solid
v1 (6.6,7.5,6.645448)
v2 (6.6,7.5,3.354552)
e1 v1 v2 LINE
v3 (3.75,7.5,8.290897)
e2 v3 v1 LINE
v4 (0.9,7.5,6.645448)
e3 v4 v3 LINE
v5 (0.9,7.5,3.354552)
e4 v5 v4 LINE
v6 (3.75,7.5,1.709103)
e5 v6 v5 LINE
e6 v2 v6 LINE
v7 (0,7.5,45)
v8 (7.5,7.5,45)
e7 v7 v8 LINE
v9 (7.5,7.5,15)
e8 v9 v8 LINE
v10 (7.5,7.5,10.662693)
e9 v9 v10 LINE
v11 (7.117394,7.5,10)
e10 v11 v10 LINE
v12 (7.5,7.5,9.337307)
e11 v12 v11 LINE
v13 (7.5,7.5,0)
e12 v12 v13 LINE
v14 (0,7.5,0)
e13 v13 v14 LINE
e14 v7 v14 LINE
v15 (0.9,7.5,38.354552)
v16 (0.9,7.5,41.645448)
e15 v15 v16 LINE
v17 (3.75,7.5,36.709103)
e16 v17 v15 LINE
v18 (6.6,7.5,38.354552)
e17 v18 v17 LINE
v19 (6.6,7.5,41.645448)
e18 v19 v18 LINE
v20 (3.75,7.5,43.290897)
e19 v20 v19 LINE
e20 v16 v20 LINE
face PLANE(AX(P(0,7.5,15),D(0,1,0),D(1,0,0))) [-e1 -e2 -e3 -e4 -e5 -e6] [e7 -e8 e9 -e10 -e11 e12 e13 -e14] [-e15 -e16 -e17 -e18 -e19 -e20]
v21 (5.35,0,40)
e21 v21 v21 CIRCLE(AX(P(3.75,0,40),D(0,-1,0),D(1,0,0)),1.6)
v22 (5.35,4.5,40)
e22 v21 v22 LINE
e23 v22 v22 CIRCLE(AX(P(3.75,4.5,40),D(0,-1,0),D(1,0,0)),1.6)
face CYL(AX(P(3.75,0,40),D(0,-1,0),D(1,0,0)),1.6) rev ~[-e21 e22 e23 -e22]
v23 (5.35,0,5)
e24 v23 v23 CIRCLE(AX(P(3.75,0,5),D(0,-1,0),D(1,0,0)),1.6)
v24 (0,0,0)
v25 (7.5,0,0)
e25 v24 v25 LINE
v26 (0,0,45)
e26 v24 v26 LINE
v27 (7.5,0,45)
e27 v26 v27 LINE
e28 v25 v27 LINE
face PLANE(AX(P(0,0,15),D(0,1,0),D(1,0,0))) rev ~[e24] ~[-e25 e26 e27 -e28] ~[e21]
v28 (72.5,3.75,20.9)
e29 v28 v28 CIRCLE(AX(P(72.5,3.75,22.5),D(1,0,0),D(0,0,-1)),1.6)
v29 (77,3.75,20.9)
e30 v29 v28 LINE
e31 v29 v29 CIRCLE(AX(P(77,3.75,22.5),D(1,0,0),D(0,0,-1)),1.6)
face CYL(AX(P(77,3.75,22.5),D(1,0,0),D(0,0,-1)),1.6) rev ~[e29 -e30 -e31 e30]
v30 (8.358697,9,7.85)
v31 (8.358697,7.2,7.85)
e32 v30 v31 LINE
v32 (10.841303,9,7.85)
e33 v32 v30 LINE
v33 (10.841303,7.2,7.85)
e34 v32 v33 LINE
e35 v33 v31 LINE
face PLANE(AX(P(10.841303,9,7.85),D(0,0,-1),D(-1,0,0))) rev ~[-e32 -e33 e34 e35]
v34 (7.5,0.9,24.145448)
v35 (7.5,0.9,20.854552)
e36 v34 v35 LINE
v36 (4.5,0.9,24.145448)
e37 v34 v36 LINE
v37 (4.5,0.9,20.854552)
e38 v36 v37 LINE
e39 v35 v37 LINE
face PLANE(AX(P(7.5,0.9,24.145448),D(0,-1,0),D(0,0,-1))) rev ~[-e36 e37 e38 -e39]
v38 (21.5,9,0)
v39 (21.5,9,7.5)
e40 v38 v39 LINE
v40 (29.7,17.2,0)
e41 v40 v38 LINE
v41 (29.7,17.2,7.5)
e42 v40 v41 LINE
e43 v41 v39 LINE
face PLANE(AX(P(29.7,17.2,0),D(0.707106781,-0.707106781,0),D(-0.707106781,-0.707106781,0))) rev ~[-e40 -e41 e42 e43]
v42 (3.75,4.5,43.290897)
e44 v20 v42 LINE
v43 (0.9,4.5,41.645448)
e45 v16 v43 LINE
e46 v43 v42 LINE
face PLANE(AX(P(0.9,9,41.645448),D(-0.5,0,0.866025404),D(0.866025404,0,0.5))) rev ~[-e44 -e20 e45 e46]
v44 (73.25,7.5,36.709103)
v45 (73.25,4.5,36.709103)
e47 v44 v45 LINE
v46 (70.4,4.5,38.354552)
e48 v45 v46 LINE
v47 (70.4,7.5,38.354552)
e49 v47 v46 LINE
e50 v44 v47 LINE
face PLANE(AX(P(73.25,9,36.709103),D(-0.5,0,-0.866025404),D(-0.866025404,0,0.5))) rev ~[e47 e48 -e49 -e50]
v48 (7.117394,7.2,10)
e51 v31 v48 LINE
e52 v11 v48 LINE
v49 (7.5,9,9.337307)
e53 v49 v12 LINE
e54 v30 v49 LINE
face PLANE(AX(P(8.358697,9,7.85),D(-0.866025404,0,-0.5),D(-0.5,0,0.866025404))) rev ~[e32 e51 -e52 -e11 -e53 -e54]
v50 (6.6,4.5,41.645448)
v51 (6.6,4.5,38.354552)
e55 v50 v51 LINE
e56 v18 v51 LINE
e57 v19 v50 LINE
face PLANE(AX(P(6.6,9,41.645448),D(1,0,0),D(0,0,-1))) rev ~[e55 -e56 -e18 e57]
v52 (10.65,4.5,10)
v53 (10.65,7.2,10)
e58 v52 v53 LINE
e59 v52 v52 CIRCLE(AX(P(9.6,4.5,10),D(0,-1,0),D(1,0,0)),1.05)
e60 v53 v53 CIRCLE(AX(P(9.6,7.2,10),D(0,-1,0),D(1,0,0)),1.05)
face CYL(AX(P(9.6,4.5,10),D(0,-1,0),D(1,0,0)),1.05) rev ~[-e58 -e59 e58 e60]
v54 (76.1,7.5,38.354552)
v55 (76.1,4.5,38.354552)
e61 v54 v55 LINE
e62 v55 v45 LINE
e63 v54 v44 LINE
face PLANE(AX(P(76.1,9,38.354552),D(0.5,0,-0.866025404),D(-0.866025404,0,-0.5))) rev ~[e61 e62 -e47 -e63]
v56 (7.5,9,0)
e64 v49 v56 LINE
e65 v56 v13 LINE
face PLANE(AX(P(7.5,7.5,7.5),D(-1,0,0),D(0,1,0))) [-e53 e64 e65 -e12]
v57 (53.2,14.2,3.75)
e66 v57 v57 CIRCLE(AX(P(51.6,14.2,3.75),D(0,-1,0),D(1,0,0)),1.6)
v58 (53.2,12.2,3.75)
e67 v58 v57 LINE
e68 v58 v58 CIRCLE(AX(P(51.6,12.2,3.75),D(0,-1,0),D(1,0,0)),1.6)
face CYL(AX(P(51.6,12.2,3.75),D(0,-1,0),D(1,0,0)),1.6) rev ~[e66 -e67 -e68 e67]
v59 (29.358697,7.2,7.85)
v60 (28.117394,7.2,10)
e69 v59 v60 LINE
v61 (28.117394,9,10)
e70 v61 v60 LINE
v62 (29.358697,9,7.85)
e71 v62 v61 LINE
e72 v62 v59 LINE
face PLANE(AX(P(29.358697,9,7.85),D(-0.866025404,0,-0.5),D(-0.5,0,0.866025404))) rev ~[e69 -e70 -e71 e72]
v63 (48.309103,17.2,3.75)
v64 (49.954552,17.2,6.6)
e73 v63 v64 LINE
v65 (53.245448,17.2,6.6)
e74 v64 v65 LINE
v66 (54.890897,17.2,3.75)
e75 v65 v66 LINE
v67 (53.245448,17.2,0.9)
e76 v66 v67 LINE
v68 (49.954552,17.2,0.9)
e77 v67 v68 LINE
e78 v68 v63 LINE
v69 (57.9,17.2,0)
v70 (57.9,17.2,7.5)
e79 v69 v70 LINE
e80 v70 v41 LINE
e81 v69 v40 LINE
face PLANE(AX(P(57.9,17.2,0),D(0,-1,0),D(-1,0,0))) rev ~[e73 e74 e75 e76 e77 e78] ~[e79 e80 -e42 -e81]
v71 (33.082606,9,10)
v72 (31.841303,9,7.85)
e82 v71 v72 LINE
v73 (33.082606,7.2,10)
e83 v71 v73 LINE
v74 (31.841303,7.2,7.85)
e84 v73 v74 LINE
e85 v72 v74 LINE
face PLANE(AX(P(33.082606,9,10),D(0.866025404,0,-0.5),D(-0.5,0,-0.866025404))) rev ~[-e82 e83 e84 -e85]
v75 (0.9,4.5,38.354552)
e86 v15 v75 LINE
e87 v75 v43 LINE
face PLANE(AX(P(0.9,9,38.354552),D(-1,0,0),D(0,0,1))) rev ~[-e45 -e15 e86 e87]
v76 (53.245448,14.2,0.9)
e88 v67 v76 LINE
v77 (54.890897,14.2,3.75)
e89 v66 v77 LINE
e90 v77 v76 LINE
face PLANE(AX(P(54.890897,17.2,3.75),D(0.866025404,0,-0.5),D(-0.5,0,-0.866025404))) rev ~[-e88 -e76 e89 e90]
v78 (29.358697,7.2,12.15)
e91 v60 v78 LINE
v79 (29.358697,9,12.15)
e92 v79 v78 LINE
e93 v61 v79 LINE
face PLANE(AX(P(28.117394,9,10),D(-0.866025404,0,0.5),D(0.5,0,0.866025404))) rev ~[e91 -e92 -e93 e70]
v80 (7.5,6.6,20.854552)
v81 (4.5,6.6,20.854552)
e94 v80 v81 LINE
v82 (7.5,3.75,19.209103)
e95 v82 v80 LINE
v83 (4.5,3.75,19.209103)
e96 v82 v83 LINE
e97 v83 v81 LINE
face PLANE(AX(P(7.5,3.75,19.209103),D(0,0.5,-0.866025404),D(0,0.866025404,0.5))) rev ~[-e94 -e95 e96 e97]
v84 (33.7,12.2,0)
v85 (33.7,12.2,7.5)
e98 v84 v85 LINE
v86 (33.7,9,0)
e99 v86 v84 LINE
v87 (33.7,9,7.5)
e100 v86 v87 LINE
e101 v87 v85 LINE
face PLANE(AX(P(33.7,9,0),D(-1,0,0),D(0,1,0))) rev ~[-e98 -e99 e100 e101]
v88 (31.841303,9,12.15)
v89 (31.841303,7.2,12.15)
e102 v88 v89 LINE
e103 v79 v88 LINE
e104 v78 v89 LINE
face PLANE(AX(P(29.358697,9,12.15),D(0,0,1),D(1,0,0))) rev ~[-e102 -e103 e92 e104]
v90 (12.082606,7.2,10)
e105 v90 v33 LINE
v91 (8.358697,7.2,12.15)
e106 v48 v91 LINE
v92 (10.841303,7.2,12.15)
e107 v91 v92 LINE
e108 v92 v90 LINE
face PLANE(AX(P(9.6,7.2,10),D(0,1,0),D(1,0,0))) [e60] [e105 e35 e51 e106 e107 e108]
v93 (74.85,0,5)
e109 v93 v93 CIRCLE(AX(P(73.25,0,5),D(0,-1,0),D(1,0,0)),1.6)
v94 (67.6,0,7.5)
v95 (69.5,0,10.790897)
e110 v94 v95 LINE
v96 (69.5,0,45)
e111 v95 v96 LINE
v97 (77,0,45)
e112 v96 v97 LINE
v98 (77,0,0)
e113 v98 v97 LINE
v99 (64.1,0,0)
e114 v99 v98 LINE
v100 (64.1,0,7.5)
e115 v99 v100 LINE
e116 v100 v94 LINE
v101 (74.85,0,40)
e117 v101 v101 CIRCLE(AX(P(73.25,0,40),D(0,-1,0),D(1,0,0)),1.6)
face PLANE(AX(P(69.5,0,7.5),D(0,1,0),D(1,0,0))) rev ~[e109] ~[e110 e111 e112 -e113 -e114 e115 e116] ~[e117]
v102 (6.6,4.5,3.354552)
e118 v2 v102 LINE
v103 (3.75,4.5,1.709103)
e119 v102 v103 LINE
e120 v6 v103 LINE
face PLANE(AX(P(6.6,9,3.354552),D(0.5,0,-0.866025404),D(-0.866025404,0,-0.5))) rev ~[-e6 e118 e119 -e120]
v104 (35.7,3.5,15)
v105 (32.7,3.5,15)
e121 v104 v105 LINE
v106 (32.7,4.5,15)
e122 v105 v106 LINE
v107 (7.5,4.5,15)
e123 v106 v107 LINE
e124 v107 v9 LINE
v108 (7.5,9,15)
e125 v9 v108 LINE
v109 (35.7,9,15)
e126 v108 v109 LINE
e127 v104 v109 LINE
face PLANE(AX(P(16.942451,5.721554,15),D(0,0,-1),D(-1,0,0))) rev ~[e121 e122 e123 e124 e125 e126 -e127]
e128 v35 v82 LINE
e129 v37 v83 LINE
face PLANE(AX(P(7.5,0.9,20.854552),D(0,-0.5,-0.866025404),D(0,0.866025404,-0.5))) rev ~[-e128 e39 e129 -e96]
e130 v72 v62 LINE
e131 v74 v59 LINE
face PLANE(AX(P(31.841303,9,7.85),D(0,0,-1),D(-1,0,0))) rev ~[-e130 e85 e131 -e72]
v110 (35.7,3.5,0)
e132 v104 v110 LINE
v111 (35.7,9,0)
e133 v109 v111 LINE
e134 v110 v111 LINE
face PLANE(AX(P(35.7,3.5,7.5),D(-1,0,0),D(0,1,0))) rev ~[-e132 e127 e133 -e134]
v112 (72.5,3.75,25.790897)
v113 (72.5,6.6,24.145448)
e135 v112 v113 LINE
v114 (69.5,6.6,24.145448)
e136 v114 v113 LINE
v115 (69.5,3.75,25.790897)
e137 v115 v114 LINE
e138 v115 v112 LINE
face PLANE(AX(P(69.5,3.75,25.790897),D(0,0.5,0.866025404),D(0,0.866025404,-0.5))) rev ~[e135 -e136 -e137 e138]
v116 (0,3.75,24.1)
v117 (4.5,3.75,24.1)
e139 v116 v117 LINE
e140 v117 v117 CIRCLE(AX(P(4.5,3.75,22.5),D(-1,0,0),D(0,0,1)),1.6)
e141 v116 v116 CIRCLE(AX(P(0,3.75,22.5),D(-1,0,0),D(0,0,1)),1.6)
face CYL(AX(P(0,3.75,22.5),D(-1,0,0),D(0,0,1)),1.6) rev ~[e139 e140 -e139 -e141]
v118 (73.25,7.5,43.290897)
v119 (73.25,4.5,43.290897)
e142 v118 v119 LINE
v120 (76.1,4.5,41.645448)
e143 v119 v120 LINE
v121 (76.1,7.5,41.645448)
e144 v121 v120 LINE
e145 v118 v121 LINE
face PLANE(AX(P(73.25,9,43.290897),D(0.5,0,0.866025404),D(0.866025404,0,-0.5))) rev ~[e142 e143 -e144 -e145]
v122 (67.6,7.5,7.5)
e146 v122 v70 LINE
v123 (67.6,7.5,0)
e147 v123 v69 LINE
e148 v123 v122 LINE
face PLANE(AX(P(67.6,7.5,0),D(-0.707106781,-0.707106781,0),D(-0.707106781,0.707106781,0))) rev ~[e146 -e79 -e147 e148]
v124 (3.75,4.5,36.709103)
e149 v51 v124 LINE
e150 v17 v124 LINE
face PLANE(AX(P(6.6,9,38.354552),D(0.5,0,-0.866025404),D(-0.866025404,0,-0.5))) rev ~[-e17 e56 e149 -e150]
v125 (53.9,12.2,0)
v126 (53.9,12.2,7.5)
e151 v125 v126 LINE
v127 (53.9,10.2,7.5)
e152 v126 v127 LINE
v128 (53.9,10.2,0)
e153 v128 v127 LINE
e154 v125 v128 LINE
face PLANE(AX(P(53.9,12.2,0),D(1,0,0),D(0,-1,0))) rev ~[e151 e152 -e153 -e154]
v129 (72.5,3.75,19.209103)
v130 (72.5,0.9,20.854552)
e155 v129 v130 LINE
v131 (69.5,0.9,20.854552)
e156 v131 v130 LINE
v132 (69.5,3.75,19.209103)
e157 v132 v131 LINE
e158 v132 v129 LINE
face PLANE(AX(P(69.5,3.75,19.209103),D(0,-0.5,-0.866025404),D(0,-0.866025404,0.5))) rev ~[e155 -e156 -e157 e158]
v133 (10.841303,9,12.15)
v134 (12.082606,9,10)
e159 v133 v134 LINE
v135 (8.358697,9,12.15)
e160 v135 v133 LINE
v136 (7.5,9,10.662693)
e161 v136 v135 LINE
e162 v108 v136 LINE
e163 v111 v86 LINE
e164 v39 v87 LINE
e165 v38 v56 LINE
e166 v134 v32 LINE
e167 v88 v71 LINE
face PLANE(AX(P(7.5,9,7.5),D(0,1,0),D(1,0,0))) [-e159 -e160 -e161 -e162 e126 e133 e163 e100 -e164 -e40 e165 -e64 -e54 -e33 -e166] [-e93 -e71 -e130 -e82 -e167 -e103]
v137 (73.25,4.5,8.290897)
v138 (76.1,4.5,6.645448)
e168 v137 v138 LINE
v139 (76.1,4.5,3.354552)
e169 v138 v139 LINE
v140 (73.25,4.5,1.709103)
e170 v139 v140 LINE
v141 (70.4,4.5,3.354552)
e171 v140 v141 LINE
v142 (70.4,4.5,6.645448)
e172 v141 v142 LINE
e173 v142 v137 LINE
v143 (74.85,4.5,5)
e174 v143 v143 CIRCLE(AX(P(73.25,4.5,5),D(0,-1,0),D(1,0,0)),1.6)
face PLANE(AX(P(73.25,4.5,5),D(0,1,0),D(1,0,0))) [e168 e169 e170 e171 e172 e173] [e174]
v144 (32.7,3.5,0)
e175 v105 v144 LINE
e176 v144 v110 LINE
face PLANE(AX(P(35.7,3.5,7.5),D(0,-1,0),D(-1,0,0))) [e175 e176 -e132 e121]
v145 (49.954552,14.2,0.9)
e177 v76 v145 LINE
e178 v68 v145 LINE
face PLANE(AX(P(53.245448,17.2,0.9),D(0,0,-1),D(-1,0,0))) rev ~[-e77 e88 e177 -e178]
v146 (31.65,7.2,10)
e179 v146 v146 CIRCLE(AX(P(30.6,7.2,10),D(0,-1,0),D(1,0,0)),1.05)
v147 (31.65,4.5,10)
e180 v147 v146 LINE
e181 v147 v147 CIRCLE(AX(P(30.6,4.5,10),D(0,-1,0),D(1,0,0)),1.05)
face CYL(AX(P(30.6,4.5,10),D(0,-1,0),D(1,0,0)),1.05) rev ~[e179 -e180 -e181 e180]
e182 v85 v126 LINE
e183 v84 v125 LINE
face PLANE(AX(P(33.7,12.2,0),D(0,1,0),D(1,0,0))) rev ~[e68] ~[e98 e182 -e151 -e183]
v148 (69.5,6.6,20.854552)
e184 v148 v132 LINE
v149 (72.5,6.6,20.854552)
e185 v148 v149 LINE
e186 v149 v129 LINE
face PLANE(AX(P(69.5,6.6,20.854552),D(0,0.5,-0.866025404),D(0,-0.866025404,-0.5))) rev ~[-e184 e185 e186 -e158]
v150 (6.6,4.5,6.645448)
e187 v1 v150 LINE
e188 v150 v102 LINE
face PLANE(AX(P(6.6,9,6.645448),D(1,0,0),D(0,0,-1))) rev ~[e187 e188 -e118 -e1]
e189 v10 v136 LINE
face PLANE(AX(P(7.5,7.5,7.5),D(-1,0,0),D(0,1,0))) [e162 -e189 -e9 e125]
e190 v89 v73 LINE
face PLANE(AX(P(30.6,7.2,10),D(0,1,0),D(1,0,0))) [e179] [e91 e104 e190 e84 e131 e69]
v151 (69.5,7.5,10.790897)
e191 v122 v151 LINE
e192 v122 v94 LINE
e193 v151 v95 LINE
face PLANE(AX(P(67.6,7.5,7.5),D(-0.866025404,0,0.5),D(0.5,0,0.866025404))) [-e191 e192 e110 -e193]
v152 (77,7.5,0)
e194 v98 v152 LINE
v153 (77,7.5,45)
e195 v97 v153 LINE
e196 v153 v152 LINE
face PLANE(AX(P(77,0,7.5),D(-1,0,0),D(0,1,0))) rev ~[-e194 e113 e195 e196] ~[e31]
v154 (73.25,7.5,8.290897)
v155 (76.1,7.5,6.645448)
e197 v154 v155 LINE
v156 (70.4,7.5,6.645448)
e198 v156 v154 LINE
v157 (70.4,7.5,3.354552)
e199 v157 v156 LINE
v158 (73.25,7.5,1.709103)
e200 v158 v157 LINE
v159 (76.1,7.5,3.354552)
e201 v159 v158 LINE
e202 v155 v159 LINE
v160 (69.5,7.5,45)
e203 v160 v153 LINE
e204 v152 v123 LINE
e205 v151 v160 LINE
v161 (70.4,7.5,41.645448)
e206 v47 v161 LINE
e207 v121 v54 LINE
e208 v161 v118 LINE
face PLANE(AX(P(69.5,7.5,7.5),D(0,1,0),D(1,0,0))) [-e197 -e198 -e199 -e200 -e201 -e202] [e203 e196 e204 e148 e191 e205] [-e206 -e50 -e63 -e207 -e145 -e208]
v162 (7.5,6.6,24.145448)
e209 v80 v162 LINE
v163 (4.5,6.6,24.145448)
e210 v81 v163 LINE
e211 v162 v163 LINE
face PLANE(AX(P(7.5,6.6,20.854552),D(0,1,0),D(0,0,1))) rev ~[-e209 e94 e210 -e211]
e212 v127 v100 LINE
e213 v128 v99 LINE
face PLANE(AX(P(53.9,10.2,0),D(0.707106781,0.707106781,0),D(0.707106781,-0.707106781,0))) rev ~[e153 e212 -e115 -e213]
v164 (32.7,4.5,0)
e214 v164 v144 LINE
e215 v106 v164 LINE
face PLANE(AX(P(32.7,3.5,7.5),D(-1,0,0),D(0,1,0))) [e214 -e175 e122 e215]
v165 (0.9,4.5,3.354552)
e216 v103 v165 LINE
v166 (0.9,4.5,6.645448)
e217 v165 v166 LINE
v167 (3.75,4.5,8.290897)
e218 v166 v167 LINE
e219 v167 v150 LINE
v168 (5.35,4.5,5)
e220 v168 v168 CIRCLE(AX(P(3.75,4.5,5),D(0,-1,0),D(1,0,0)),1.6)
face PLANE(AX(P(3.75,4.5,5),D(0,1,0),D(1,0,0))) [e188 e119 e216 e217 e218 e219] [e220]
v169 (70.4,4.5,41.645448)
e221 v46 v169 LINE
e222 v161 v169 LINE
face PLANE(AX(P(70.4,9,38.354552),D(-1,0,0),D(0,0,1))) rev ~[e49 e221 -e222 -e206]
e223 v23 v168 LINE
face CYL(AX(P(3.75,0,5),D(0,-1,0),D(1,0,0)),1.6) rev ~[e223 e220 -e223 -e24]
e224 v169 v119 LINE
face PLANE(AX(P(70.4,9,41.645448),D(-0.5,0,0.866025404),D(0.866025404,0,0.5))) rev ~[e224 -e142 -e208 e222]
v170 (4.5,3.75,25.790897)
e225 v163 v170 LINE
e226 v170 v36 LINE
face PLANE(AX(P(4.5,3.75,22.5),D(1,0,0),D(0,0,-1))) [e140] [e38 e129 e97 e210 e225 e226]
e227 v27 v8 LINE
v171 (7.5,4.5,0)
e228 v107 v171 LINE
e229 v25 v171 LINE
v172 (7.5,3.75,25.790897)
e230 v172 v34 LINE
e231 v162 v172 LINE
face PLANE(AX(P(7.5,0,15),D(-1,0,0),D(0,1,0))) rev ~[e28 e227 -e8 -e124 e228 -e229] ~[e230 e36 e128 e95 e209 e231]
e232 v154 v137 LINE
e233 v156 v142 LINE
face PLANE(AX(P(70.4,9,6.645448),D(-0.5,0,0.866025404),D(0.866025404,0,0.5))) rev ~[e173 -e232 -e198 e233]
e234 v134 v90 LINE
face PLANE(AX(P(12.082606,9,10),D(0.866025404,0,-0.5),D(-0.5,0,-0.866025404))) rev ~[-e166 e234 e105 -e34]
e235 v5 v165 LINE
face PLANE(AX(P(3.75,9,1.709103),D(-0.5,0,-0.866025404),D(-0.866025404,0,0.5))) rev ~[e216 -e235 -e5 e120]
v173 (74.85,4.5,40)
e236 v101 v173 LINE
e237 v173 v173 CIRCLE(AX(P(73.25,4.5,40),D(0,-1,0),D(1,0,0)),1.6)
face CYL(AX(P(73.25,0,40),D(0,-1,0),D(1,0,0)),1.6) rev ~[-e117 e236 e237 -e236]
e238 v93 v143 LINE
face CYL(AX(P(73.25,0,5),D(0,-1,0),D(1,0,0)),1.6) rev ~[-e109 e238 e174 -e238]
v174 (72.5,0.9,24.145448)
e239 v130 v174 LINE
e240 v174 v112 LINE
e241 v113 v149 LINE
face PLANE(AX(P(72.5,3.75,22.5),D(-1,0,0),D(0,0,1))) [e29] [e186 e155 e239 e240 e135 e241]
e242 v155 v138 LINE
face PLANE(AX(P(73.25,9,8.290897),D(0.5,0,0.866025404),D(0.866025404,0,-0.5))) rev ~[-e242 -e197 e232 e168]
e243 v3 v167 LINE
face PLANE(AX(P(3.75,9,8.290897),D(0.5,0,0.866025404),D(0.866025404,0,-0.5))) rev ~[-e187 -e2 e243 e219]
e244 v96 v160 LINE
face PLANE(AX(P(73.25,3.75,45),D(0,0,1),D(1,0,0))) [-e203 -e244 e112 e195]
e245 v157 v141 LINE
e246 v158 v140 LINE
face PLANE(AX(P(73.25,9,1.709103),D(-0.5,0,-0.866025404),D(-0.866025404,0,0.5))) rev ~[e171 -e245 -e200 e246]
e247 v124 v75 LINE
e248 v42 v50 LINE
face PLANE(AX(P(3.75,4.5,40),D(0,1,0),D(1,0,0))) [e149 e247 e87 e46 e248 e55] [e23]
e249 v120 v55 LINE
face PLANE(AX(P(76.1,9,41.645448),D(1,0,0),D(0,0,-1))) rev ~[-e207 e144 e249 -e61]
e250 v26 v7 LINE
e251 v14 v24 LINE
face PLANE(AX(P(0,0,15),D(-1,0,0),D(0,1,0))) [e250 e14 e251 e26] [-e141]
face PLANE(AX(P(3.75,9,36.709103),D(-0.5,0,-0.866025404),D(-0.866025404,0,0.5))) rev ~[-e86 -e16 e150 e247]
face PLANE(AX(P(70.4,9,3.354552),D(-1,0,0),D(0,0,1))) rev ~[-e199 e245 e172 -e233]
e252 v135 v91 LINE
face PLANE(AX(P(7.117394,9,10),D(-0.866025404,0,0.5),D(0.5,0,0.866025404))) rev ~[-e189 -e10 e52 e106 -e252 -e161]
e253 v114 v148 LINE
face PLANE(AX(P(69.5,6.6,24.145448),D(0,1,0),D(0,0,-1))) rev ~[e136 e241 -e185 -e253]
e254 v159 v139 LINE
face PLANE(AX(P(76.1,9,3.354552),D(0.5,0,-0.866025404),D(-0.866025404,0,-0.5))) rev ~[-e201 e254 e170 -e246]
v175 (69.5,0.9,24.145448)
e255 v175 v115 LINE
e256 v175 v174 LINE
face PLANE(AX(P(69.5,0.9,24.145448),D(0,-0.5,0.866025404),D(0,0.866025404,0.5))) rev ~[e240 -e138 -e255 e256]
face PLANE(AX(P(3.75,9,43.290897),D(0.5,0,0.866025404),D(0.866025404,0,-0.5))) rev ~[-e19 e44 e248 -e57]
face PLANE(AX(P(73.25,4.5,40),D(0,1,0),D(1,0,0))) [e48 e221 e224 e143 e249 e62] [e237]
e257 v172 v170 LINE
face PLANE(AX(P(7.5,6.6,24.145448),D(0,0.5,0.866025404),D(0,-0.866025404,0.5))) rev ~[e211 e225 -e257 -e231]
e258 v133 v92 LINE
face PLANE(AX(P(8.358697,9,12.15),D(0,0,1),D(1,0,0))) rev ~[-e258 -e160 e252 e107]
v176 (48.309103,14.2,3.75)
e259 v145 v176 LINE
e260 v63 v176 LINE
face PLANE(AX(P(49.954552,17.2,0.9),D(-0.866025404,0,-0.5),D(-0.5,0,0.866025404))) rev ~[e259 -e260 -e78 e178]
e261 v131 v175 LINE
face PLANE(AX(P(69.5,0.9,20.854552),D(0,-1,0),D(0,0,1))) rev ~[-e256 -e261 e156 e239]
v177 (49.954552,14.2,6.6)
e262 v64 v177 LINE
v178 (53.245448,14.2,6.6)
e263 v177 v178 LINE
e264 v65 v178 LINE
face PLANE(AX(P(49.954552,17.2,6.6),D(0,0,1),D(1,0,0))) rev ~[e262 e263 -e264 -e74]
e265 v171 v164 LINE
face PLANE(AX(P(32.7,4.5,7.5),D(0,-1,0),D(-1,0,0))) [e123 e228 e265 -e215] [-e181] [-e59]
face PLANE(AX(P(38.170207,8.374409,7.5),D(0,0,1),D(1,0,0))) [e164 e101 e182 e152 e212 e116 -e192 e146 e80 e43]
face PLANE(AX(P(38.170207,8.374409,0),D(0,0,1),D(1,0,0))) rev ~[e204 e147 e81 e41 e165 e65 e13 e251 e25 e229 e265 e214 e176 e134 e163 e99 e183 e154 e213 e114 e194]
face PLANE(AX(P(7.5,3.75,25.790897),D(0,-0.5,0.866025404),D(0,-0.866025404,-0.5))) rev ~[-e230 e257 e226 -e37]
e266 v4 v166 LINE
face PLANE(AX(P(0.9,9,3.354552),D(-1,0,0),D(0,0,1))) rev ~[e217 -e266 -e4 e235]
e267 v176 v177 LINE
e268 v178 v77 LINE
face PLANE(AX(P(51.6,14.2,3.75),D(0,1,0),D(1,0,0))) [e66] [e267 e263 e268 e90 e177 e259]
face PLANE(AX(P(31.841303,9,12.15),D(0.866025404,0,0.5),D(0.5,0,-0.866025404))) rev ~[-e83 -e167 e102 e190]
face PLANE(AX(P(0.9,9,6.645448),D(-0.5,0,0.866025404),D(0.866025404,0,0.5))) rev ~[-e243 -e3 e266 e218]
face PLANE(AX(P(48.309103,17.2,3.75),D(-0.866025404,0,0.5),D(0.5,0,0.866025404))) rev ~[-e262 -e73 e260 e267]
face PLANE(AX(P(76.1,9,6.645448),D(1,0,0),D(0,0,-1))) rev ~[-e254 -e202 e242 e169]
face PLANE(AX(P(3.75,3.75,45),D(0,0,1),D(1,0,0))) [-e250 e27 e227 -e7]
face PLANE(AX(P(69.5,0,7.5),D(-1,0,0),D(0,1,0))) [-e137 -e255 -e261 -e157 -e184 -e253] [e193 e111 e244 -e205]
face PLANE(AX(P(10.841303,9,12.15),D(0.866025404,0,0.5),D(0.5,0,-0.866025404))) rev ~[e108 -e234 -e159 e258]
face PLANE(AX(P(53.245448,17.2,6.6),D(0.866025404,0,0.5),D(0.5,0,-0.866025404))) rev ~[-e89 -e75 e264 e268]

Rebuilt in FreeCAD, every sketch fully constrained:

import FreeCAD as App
import Part
import Sketcher
from FreeCAD import Vector
Q = App.Units.Quantity


def add_polygon(sketch, points):
    """Adds a closed chain of lines whose ends are joined by coincident constraints."""
    first, n = sketch.GeometryCount, len(points)
    for a, b in zip(points, points[1:] + points[:1]):
        sketch.addGeometry(Part.LineSegment(App.Vector(*a, 0), App.Vector(*b, 0)), False)
    for i in range(n):
        sketch.addConstraint(Sketcher.Constraint("Coincident", first + i, 2, first + (i + 1) % n, 1))

doc = App.newDocument("Part")
params = doc.addObject("Spreadsheet::Sheet", "Params")
for row, (alias, value) in enumerate([
    ("sketch1_width", "3 mm"),
    ("sketch1_width2", "2 mm"),
    ("sketch1_width3", "14 mm"),
    ("sketch1_height", "1 mm"),
    ("sketch1_width4", "7.5 mm"),
    ("pad1_length", "7.5 mm"),
    ("sketch2_width", "3 mm"),
    ("sketch2_height", "1 mm"),
    ("sketch2_width2", "7.5 mm"),
    ("sketch2_width3", "25.2 mm"),
    ("sketch2_height2", "4.5 mm"),
    ("pad2_length", "7.5 mm"),
    ("sketch3_width", "7.5 mm"),
    ("pad3_length", "30 mm"),
    ("sketch4_width", "1.9 mm"),
    ("pad4_length", "7.5 mm"),
    ("sketch5_width", "7.5 mm"),
    ("pad5_length", "37.5 mm"),
    ("sketch6_diameter", "3.2 mm"),
    ("sketch7_diameter", "3.2 mm"),
    ("sketch8_diameter", "3.2 mm"),
    ("sketch9_diameter", "3.2 mm"),
    ("pocket5_length", "4.5 mm"),
    ("sketch11_diameter", "3.2 mm"),
    ("pocket7_length", "3 mm"),
    ("sketch13_diameter", "2.1 mm"),
    ("sketch14_diameter", "2.1 mm"),
    ("pocket10_length", "1.8 mm"),
    ("sketch16_diameter", "3.2 mm"),
    ("pocket12_length", "3 mm"),
    ("sketch18_diameter", "3.2 mm"),
    ("pocket14_length", "3 mm"),
], start=1):
    params.set(f"A{row}", alias)
    params.set(f"B{row}", "=" + value)
    params.setAlias(f"B{row}", alias)

body = doc.addObject("PartDesign::Body", "Body")

# Sketch on XY plane
sketch1 = body.newObject("Sketcher::SketchObject", "Sketch")
sketch1.AttachmentSupport = (doc.getObject("XY_Plane"), [""])
sketch1.MapMode = "FlatFace"
add_polygon(sketch1, [(0, 0), (7.5, 0), (7.5, 4.5), (32.7, 4.5), (32.7, 3.5), (35.7, 3.5), (35.7, 9), (33.7, 9), (33.7, 12.2), (53.9, 12.2), (53.9, 10.2), (64.1, 0), (77, 0), (77, 7.5), (67.6, 7.5), (57.9, 17.2), (29.7, 17.2), (21.5, 9), (7.5, 9), (7.5, 7.5), (0, 7.5)])  # lines 0-20
sketch1.addConstraint(Sketcher.Constraint("Horizontal", 0))
sketch1.addConstraint(Sketcher.Constraint("Vertical", 1))
sketch1.addConstraint(Sketcher.Constraint("Horizontal", 2))
sketch1.addConstraint(Sketcher.Constraint("Vertical", 3))
sketch1.addConstraint(Sketcher.Constraint("Horizontal", 4))
sketch1.addConstraint(Sketcher.Constraint("Vertical", 5))
sketch1.addConstraint(Sketcher.Constraint("Horizontal", 6))
sketch1.addConstraint(Sketcher.Constraint("Vertical", 7))
sketch1.addConstraint(Sketcher.Constraint("Horizontal", 8))
sketch1.addConstraint(Sketcher.Constraint("Vertical", 9))
sketch1.addConstraint(Sketcher.Constraint("Horizontal", 11))
sketch1.addConstraint(Sketcher.Constraint("Vertical", 12))
sketch1.addConstraint(Sketcher.Constraint("Horizontal", 13))
sketch1.addConstraint(Sketcher.Constraint("Horizontal", 15))
sketch1.addConstraint(Sketcher.Constraint("Horizontal", 17))
sketch1.addConstraint(Sketcher.Constraint("Vertical", 18))
sketch1.addConstraint(Sketcher.Constraint("Horizontal", 19))
sketch1.addConstraint(Sketcher.Constraint("Vertical", 20))
sketch1.addConstraint(Sketcher.Constraint("Coincident", 20, 2, -1, 1))
sketch1.addConstraint(Sketcher.Constraint("PointOnObject", 10, 2, -1))
sketch1.addConstraint(Sketcher.Constraint("Parallel", 10, 14))
sketch1.addConstraint(Sketcher.Constraint("Perpendicular", 14, 16))
sketch1.addConstraint(Sketcher.Constraint("Horizontal", 6, 2, 16, 2))
sketch1.addConstraint(Sketcher.Constraint("Horizontal", 13, 2, 18, 2))
sketch1.addConstraint(Sketcher.Constraint("Vertical", 1, 2, 17, 2))
sketch1.addConstraint(Sketcher.Constraint("Equal", 6, 9))
sketch1.addConstraint(Sketcher.Constraint("Equal", 19, 12))
sketch1.addConstraint(Sketcher.Constraint("DistanceX", 4, 1, 4, 2, Q("3 mm")))
sketch1.addConstraint(Sketcher.Constraint("DistanceX", 6, 2, 6, 1, Q("2 mm")))
sketch1.addConstraint(Sketcher.Constraint("DistanceX", 17, 2, 17, 1, Q("14 mm")))
sketch1.addConstraint(Sketcher.Constraint("DistanceY", 3, 2, 3, 1, Q("1 mm")))
sketch1.addConstraint(Sketcher.Constraint("Angle", 10, Q("-45 deg")))
sketch1.addConstraint(Sketcher.Constraint("DistanceX", 0, 1, 0, 2, Q("7.5 mm")))
sketch1.addConstraint(Sketcher.Constraint("DistanceX", 2, 1, 2, 2, Q("25.2 mm")))
sketch1.addConstraint(Sketcher.Constraint("DistanceX", 8, 1, 8, 2, Q("20.2 mm")))
sketch1.addConstraint(Sketcher.Constraint("DistanceX", 11, 1, 11, 2, Q("12.9 mm")))
sketch1.addConstraint(Sketcher.Constraint("DistanceX", 13, 2, 13, 1, Q("9.4 mm")))
sketch1.addConstraint(Sketcher.Constraint("DistanceX", 15, 2, 15, 1, Q("28.2 mm")))
sketch1.addConstraint(Sketcher.Constraint("DistanceY", 1, 1, 1, 2, Q("4.5 mm")))
sketch1.addConstraint(Sketcher.Constraint("DistanceY", 5, 1, 5, 2, Q("5.5 mm")))
sketch1.addConstraint(Sketcher.Constraint("DistanceY", 7, 1, 7, 2, Q("3.2 mm")))
sketch1.setExpression("Constraints[48]", "Params.sketch1_width")
sketch1.setExpression("Constraints[49]", "Params.sketch1_width2")
sketch1.setExpression("Constraints[50]", "Params.sketch1_width3")
sketch1.setExpression("Constraints[51]", "Params.sketch1_height")
sketch1.setExpression("Constraints[53]", "Params.sketch1_width4")
pad1 = body.newObject("PartDesign::Pad", "Pad")
pad1.Profile = sketch1
pad1.setExpression("Length", "Params.pad1_length")

# Sketch on XY plane
sketch2 = body.newObject("Sketcher::SketchObject", "Sketch001")
sketch2.AttachmentSupport = (doc.getObject("XY_Plane"), [""])
sketch2.MapMode = "FlatFace"
sketch2.AttachmentOffset = App.Placement(Vector(0, 0, 7.5), App.Rotation())
add_polygon(sketch2, [(7.5, 7.5), (0, 7.5), (0, 0), (7.5, 0), (7.5, 4.5), (32.7, 4.5), (32.7, 3.5), (35.7, 3.5), (35.7, 9), (7.5, 9)])  # lines 0-9
sketch2.addConstraint(Sketcher.Constraint("Horizontal", 0))
sketch2.addConstraint(Sketcher.Constraint("Vertical", 1))
sketch2.addConstraint(Sketcher.Constraint("Horizontal", 2))
sketch2.addConstraint(Sketcher.Constraint("Vertical", 3))
sketch2.addConstraint(Sketcher.Constraint("Horizontal", 4))
sketch2.addConstraint(Sketcher.Constraint("Vertical", 5))
sketch2.addConstraint(Sketcher.Constraint("Horizontal", 6))
sketch2.addConstraint(Sketcher.Constraint("Vertical", 7))
sketch2.addConstraint(Sketcher.Constraint("Horizontal", 8))
sketch2.addConstraint(Sketcher.Constraint("Vertical", 9))
sketch2.addConstraint(Sketcher.Constraint("Coincident", 1, 2, -1, 1))
sketch2.addConstraint(Sketcher.Constraint("Vertical", 3, 2, 8, 2))
sketch2.addConstraint(Sketcher.Constraint("Equal", 2, 1))
sketch2.addConstraint(Sketcher.Constraint("DistanceX", 6, 1, 6, 2, Q("3 mm")))
sketch2.addConstraint(Sketcher.Constraint("DistanceY", 5, 2, 5, 1, Q("1 mm")))
sketch2.addConstraint(Sketcher.Constraint("DistanceX", 0, 2, 0, 1, Q("7.5 mm")))
sketch2.addConstraint(Sketcher.Constraint("DistanceX", 4, 1, 4, 2, Q("25.2 mm")))
sketch2.addConstraint(Sketcher.Constraint("DistanceY", 3, 1, 3, 2, Q("4.5 mm")))
sketch2.addConstraint(Sketcher.Constraint("DistanceY", 7, 1, 7, 2, Q("5.5 mm")))
sketch2.setExpression("Constraints[23]", "Params.sketch2_width")
sketch2.setExpression("Constraints[24]", "Params.sketch2_height")
sketch2.setExpression("Constraints[25]", "Params.sketch2_width2")
sketch2.setExpression("Constraints[26]", "Params.sketch2_width3")
sketch2.setExpression("Constraints[27]", "Params.sketch2_height2")
pad2 = body.newObject("PartDesign::Pad", "Pad001")
pad2.Profile = sketch2
pad2.setExpression("Length", "Params.pad2_length")

# Sketch on XY plane
sketch3 = body.newObject("Sketcher::SketchObject", "Sketch002")
sketch3.AttachmentSupport = (doc.getObject("XY_Plane"), [""])
sketch3.MapMode = "FlatFace"
sketch3.AttachmentOffset = App.Placement(Vector(0, 0, 15), App.Rotation())
add_polygon(sketch3, [(0, 8), (0, 0), (8, 0), (8, 8)])  # lines 0-3
sketch3.addConstraint(Sketcher.Constraint("Vertical", 0))
sketch3.addConstraint(Sketcher.Constraint("Horizontal", 1))
sketch3.addConstraint(Sketcher.Constraint("Vertical", 2))
sketch3.addConstraint(Sketcher.Constraint("Horizontal", 3))
sketch3.addConstraint(Sketcher.Constraint("Coincident", 0, 2, -1, 1))
sketch3.addConstraint(Sketcher.Constraint("Equal", 3, 0))
sketch3.addConstraint(Sketcher.Constraint("DistanceX", 1, 1, 1, 2, Q("7.5 mm")))
sketch3.setExpression("Constraints[10]", "Params.sketch3_width")
pad3 = body.newObject("PartDesign::Pad", "Pad002")
pad3.Profile = sketch3
pad3.setExpression("Length", "Params.pad3_length")

# Sketch on XZ plane
sketch4 = body.newObject("Sketcher::SketchObject", "Sketch003")
sketch4.AttachmentSupport = (doc.getObject("XZ_Plane"), [""])
sketch4.MapMode = "FlatFace"
sketch4.AttachmentOffset = App.Placement(Vector(0, 0, -7.5), App.Rotation())
add_polygon(sketch4, [(67.6, 7.5), (69.5, 10.8), (69.5, 7.5)])  # lines 0-2
sketch4.addConstraint(Sketcher.Constraint("Vertical", 1))
sketch4.addConstraint(Sketcher.Constraint("Horizontal", 2))
sketch4.addConstraint(Sketcher.Constraint("Angle", 0, Q("60 deg")))
sketch4.addConstraint(Sketcher.Constraint("DistanceX", 2, 2, 2, 1, Q("1.9 mm")))
sketch4.addConstraint(Sketcher.Constraint("DistanceX", -1, 1, 0, 2, Q("69.5 mm")))
sketch4.addConstraint(Sketcher.Constraint("DistanceY", -1, 1, 1, 2, Q("7.5 mm")))
sketch4.setExpression("Constraints[6]", "Params.sketch4_width")
pad4 = body.newObject("PartDesign::Pad", "Pad003")
pad4.Profile = sketch4
pad4.setExpression("Length", "Params.pad4_length")

# Sketch on XY plane
sketch5 = body.newObject("Sketcher::SketchObject", "Sketch004")
sketch5.AttachmentSupport = (doc.getObject("XY_Plane"), [""])
sketch5.MapMode = "FlatFace"
sketch5.AttachmentOffset = App.Placement(Vector(0, 0, 7.5), App.Rotation())
add_polygon(sketch5, [(70, 8), (70, 0), (77, 0), (77, 8)])  # lines 0-3
sketch5.addConstraint(Sketcher.Constraint("Vertical", 0))
sketch5.addConstraint(Sketcher.Constraint("Horizontal", 1))
sketch5.addConstraint(Sketcher.Constraint("Vertical", 2))
sketch5.addConstraint(Sketcher.Constraint("Horizontal", 3))
sketch5.addConstraint(Sketcher.Constraint("PointOnObject", 0, 2, -1))
sketch5.addConstraint(Sketcher.Constraint("Equal", 3, 0))
sketch5.addConstraint(Sketcher.Constraint("DistanceX", 1, 1, 1, 2, Q("7.5 mm")))
sketch5.addConstraint(Sketcher.Constraint("DistanceX", -1, 1, 1, 2, Q("77 mm")))
sketch5.setExpression("Constraints[10]", "Params.sketch5_width")
pad5 = body.newObject("PartDesign::Pad", "Pad004")
pad5.Profile = sketch5
pad5.setExpression("Length", "Params.pad5_length")

# Sketch on XZ plane
sketch6 = body.newObject("Sketcher::SketchObject", "Sketch005")
sketch6.AttachmentSupport = (doc.getObject("XZ_Plane"), [""])
sketch6.MapMode = "FlatFace"
sketch6.addGeometry(Part.Circle(Vector(73.2, 5, 0), Vector(0, 0, 1), 1.6), False)
sketch6.addConstraint(Sketcher.Constraint("Diameter", 0, Q("3.2 mm")))
sketch6.addConstraint(Sketcher.Constraint("DistanceY", -1, 1, 0, 3, Q("5 mm")))
sketch6.addConstraint(Sketcher.Constraint("DistanceX", -1, 1, 0, 3, Q("73.25 mm")))
sketch6.setExpression("Constraints[0]", "Params.sketch6_diameter")
pocket1 = body.newObject("PartDesign::Pocket", "Pocket")
pocket1.Profile = sketch6
pocket1.Type = "UpToFirst"

# Sketch on XZ plane
sketch7 = body.newObject("Sketcher::SketchObject", "Sketch006")
sketch7.AttachmentSupport = (doc.getObject("XZ_Plane"), [""])
sketch7.MapMode = "FlatFace"
sketch7.addGeometry(Part.Circle(Vector(73.2, 40, 0), Vector(0, 0, 1), 1.6), False)
sketch7.addConstraint(Sketcher.Constraint("Diameter", 0, Q("3.2 mm")))
sketch7.addConstraint(Sketcher.Constraint("DistanceY", -1, 1, 0, 3, Q("40 mm")))
sketch7.addConstraint(Sketcher.Constraint("DistanceX", -1, 1, 0, 3, Q("73.25 mm")))
sketch7.setExpression("Constraints[0]", "Params.sketch7_diameter")
pocket2 = body.newObject("PartDesign::Pocket", "Pocket001")
pocket2.Profile = sketch7
pocket2.Type = "UpToFirst"

# Sketch on XZ plane
sketch8 = body.newObject("Sketcher::SketchObject", "Sketch007")
sketch8.AttachmentSupport = (doc.getObject("XZ_Plane"), [""])
sketch8.MapMode = "FlatFace"
sketch8.addGeometry(Part.Circle(Vector(3.8, 5, 0), Vector(0, 0, 1), 1.6), False)
sketch8.addConstraint(Sketcher.Constraint("Diameter", 0, Q("3.2 mm")))
sketch8.addConstraint(Sketcher.Constraint("DistanceY", -1, 1, 0, 3, Q("5 mm")))
sketch8.addConstraint(Sketcher.Constraint("DistanceX", -1, 1, 0, 3, Q("3.75 mm")))
sketch8.setExpression("Constraints[0]", "Params.sketch8_diameter")
pocket3 = body.newObject("PartDesign::Pocket", "Pocket002")
pocket3.Profile = sketch8
pocket3.Type = "UpToFirst"

# Sketch on XZ plane
sketch9 = body.newObject("Sketcher::SketchObject", "Sketch008")
sketch9.AttachmentSupport = (doc.getObject("XZ_Plane"), [""])
sketch9.MapMode = "FlatFace"
sketch9.addGeometry(Part.Circle(Vector(3.8, 40, 0), Vector(0, 0, 1), 1.6), False)
sketch9.addConstraint(Sketcher.Constraint("Diameter", 0, Q("3.2 mm")))
sketch9.addConstraint(Sketcher.Constraint("DistanceY", -1, 1, 0, 3, Q("40 mm")))
sketch9.addConstraint(Sketcher.Constraint("DistanceX", -1, 1, 0, 3, Q("3.75 mm")))
sketch9.setExpression("Constraints[0]", "Params.sketch9_diameter")
pocket4 = body.newObject("PartDesign::Pocket", "Pocket003")
pocket4.Profile = sketch9
pocket4.Type = "UpToFirst"

# Sketch on XZ plane
sketch10 = body.newObject("Sketcher::SketchObject", "Sketch009")
sketch10.AttachmentSupport = (doc.getObject("XZ_Plane"), [""])
sketch10.MapMode = "FlatFace"
sketch10.AttachmentOffset = App.Placement(Vector(0, 0, -9), App.Rotation())
add_polygon(sketch10, [(0.9, 3.4), (0.9, 6.6), (3.8, 8.3), (6.6, 6.6), (6.6, 3.4), (3.8, 1.7)])  # lines 0-5
add_polygon(sketch10, [(0.9, 38.4), (0.9, 41.6), (3.8, 43.3), (6.6, 41.6), (6.6, 38.4), (3.8, 36.7)])  # lines 6-11
add_polygon(sketch10, [(70.4, 38.4), (70.4, 41.6), (73.2, 43.3), (76.1, 41.6), (76.1, 38.4), (73.2, 36.7)])  # lines 12-17
add_polygon(sketch10, [(70.4, 3.4), (70.4, 6.6), (73.2, 8.3), (76.1, 6.6), (76.1, 3.4), (73.2, 1.7)])  # lines 18-23
sketch10.addConstraint(Sketcher.Constraint("Vertical", 0))
sketch10.addConstraint(Sketcher.Constraint("Vertical", 3))
sketch10.addConstraint(Sketcher.Constraint("Vertical", 6))
sketch10.addConstraint(Sketcher.Constraint("Vertical", 9))
sketch10.addConstraint(Sketcher.Constraint("Vertical", 12))
sketch10.addConstraint(Sketcher.Constraint("Vertical", 15))
sketch10.addConstraint(Sketcher.Constraint("Vertical", 18))
sketch10.addConstraint(Sketcher.Constraint("Vertical", 21))
sketch10.addConstraint(Sketcher.Constraint("Parallel", 1, 4))
sketch10.addConstraint(Sketcher.Constraint("Parallel", 2, 5))
sketch10.addConstraint(Sketcher.Constraint("Parallel", 4, 7))
sketch10.addConstraint(Sketcher.Constraint("Parallel", 5, 8))
sketch10.addConstraint(Sketcher.Constraint("Parallel", 7, 10))
sketch10.addConstraint(Sketcher.Constraint("Parallel", 8, 11))
sketch10.addConstraint(Sketcher.Constraint("Parallel", 10, 13))
sketch10.addConstraint(Sketcher.Constraint("Parallel", 11, 14))
sketch10.addConstraint(Sketcher.Constraint("Parallel", 13, 16))
sketch10.addConstraint(Sketcher.Constraint("Parallel", 14, 17))
sketch10.addConstraint(Sketcher.Constraint("Parallel", 16, 19))
sketch10.addConstraint(Sketcher.Constraint("Parallel", 17, 20))
sketch10.addConstraint(Sketcher.Constraint("Parallel", 19, 22))
sketch10.addConstraint(Sketcher.Constraint("Parallel", 20, 23))
sketch10.addConstraint(Sketcher.Constraint("Horizontal", 0, 2, 2, 2))
sketch10.addConstraint(Sketcher.Constraint("Horizontal", 3, 2, 5, 2))
sketch10.addConstraint(Sketcher.Constraint("Horizontal", 6, 2, 8, 2))
sketch10.addConstraint(Sketcher.Constraint("Horizontal", 9, 2, 11, 2))
sketch10.addConstraint(Sketcher.Constraint("Horizontal", 8, 2, 12, 2))
sketch10.addConstraint(Sketcher.Constraint("Horizontal", 7, 2, 13, 2))
sketch10.addConstraint(Sketcher.Constraint("Horizontal", 12, 2, 14, 2))
sketch10.addConstraint(Sketcher.Constraint("Horizontal", 11, 2, 15, 2))
sketch10.addConstraint(Sketcher.Constraint("Horizontal", 10, 2, 16, 2))
sketch10.addConstraint(Sketcher.Constraint("Horizontal", 2, 2, 18, 2))
sketch10.addConstraint(Sketcher.Constraint("Horizontal", 1, 2, 19, 2))
sketch10.addConstraint(Sketcher.Constraint("Horizontal", 18, 2, 20, 2))
sketch10.addConstraint(Sketcher.Constraint("Horizontal", 5, 2, 21, 2))
sketch10.addConstraint(Sketcher.Constraint("Horizontal", 4, 2, 22, 2))
sketch10.addConstraint(Sketcher.Constraint("Vertical", 1, 2, 4, 2))
sketch10.addConstraint(Sketcher.Constraint("Vertical", 5, 2, 6, 2))
sketch10.addConstraint(Sketcher.Constraint("Vertical", 4, 2, 7, 2))
sketch10.addConstraint(Sketcher.Constraint("Vertical", 17, 2, 18, 2))
sketch10.addConstraint(Sketcher.Constraint("Equal", 3, 6))
sketch10.addConstraint(Sketcher.Constraint("Angle", 1, Q("30 deg")))
sketch10.addConstraint(Sketcher.Constraint("DistanceY", 0, 2, 6, 2, Q("35 mm")))
sketch10.addConstraint(Sketcher.Constraint("DistanceX", -1, 1, 0, 2, Q("0.9 mm")))
sketch10.addConstraint(Sketcher.Constraint("DistanceX", -1, 1, 2, 2, Q("6.6 mm")))
sketch10.addConstraint(Sketcher.Constraint("DistanceX", -1, 1, 12, 2, Q("70.4 mm")))
sketch10.addConstraint(Sketcher.Constraint("DistanceY", 0, 1, 0, 2, Q("3.290897 mm")))
sketch10.addConstraint(Sketcher.Constraint("DistanceY", -1, 1, 0, 2, Q("6.645448 mm")))
pocket5 = body.newObject("PartDesign::Pocket", "Pocket004")
pocket5.Profile = sketch10
pocket5.setExpression("Length", "Params.pocket5_length")
pocket5.Reversed = True

# Sketch on XZ plane
sketch11 = body.newObject("Sketcher::SketchObject", "Sketch010")
sketch11.AttachmentSupport = (doc.getObject("XZ_Plane"), [""])
sketch11.MapMode = "FlatFace"
sketch11.AttachmentOffset = App.Placement(Vector(0, 0, -12.2), App.Rotation())
sketch11.addGeometry(Part.Circle(Vector(51.6, 3.8, 0), Vector(0, 0, 1), 1.6), False)
sketch11.addConstraint(Sketcher.Constraint("Diameter", 0, Q("3.2 mm")))
sketch11.addConstraint(Sketcher.Constraint("DistanceX", -1, 1, 0, 3, Q("51.6 mm")))
sketch11.addConstraint(Sketcher.Constraint("DistanceY", -1, 1, 0, 3, Q("3.75 mm")))
sketch11.setExpression("Constraints[0]", "Params.sketch11_diameter")
pocket6 = body.newObject("PartDesign::Pocket", "Pocket005")
pocket6.Profile = sketch11
pocket6.Type = "UpToFirst"

# Sketch on XZ plane
sketch12 = body.newObject("Sketcher::SketchObject", "Sketch011")
sketch12.AttachmentSupport = (doc.getObject("XZ_Plane"), [""])
sketch12.MapMode = "FlatFace"
sketch12.AttachmentOffset = App.Placement(Vector(0, 0, -17.2), App.Rotation())
add_polygon(sketch12, [(50, 0.9), (48.3, 3.8), (50, 6.6), (53.2, 6.6), (54.9, 3.8), (53.2, 0.9)])  # lines 0-5
sketch12.addConstraint(Sketcher.Constraint("Horizontal", 2))
sketch12.addConstraint(Sketcher.Constraint("Horizontal", 5))
sketch12.addConstraint(Sketcher.Constraint("Parallel", 0, 3))
sketch12.addConstraint(Sketcher.Constraint("Parallel", 1, 4))
sketch12.addConstraint(Sketcher.Constraint("Horizontal", 0, 2, 3, 2))
sketch12.addConstraint(Sketcher.Constraint("Vertical", 2, 2, 4, 2))
sketch12.addConstraint(Sketcher.Constraint("Vertical", 1, 2, 5, 2))
sketch12.addConstraint(Sketcher.Constraint("Angle", 0, Q("120 deg")))
sketch12.addConstraint(Sketcher.Constraint("DistanceY", -1, 1, 1, 2, Q("6.6 mm")))
sketch12.addConstraint(Sketcher.Constraint("DistanceY", -1, 1, 4, 2, Q("0.9 mm")))
sketch12.addConstraint(Sketcher.Constraint("DistanceX", 2, 1, 2, 2, Q("3.290897 mm")))
sketch12.addConstraint(Sketcher.Constraint("DistanceX", -1, 1, 1, 2, Q("49.954552 mm")))
pocket7 = body.newObject("PartDesign::Pocket", "Pocket006")
pocket7.Profile = sketch12
pocket7.setExpression("Length", "Params.pocket7_length")
pocket7.Reversed = True

# Sketch on XZ plane
sketch13 = body.newObject("Sketcher::SketchObject", "Sketch012")
sketch13.AttachmentSupport = (doc.getObject("XZ_Plane"), [""])
sketch13.MapMode = "FlatFace"
sketch13.AttachmentOffset = App.Placement(Vector(0, 0, -4.5), App.Rotation())
sketch13.addGeometry(Part.Circle(Vector(30.6, 10, 0), Vector(0, 0, 1), 1.1), False)
sketch13.addConstraint(Sketcher.Constraint("Diameter", 0, Q("2.1 mm")))
sketch13.addConstraint(Sketcher.Constraint("DistanceY", -1, 1, 0, 3, Q("10 mm")))
sketch13.addConstraint(Sketcher.Constraint("DistanceX", -1, 1, 0, 3, Q("30.6 mm")))
sketch13.setExpression("Constraints[0]", "Params.sketch13_diameter")
pocket8 = body.newObject("PartDesign::Pocket", "Pocket007")
pocket8.Profile = sketch13
pocket8.Type = "UpToFirst"

# Sketch on XZ plane
sketch14 = body.newObject("Sketcher::SketchObject", "Sketch013")
sketch14.AttachmentSupport = (doc.getObject("XZ_Plane"), [""])
sketch14.MapMode = "FlatFace"
sketch14.AttachmentOffset = App.Placement(Vector(0, 0, -4.5), App.Rotation())
sketch14.addGeometry(Part.Circle(Vector(9.6, 10, 0), Vector(0, 0, 1), 1.1), False)
sketch14.addConstraint(Sketcher.Constraint("Diameter", 0, Q("2.1 mm")))
sketch14.addConstraint(Sketcher.Constraint("DistanceY", -1, 1, 0, 3, Q("10 mm")))
sketch14.addConstraint(Sketcher.Constraint("DistanceX", -1, 1, 0, 3, Q("9.6 mm")))
sketch14.setExpression("Constraints[0]", "Params.sketch14_diameter")
pocket9 = body.newObject("PartDesign::Pocket", "Pocket008")
pocket9.Profile = sketch14
pocket9.Type = "UpToFirst"

# Sketch on XZ plane
sketch15 = body.newObject("Sketcher::SketchObject", "Sketch014")
sketch15.AttachmentSupport = (doc.getObject("XZ_Plane"), [""])
sketch15.MapMode = "FlatFace"
sketch15.AttachmentOffset = App.Placement(Vector(0, 0, -9), App.Rotation())
add_polygon(sketch15, [(8.4, 12.2), (10.8, 12.2), (12.1, 10), (10.8, 7.8), (8.4, 7.8), (7.1, 10)])  # lines 0-5
add_polygon(sketch15, [(28.1, 10), (29.4, 12.2), (31.8, 12.2), (33.1, 10), (31.8, 7.8), (29.4, 7.8)])  # lines 6-11
sketch15.addConstraint(Sketcher.Constraint("Horizontal", 0))
sketch15.addConstraint(Sketcher.Constraint("Horizontal", 3))
sketch15.addConstraint(Sketcher.Constraint("Horizontal", 7))
sketch15.addConstraint(Sketcher.Constraint("Horizontal", 10))
sketch15.addConstraint(Sketcher.Constraint("Parallel", 1, 4))
sketch15.addConstraint(Sketcher.Constraint("Parallel", 2, 5))
sketch15.addConstraint(Sketcher.Constraint("Parallel", 5, 6))
sketch15.addConstraint(Sketcher.Constraint("Parallel", 4, 8))
sketch15.addConstraint(Sketcher.Constraint("Parallel", 6, 9))
sketch15.addConstraint(Sketcher.Constraint("Parallel", 8, 11))
sketch15.addConstraint(Sketcher.Constraint("Horizontal", 1, 2, 4, 2))
sketch15.addConstraint(Sketcher.Constraint("Horizontal", 5, 2, 6, 2))
sketch15.addConstraint(Sketcher.Constraint("Horizontal", 4, 2, 8, 2))
sketch15.addConstraint(Sketcher.Constraint("Horizontal", 3, 2, 9, 2))
sketch15.addConstraint(Sketcher.Constraint("Horizontal", 8, 2, 11, 2))
sketch15.addConstraint(Sketcher.Constraint("Vertical", 0, 2, 2, 2))
sketch15.addConstraint(Sketcher.Constraint("Vertical", 3, 2, 5, 2))
sketch15.addConstraint(Sketcher.Constraint("Equal", 3, 7))
sketch15.addConstraint(Sketcher.Constraint("Angle", 1, Q("-60 deg")))
sketch15.addConstraint(Sketcher.Constraint("DistanceY", -1, 1, 1, 2, Q("10 mm")))
sketch15.addConstraint(Sketcher.Constraint("DistanceX", 5, 2, 6, 2, Q("21 mm")))
sketch15.addConstraint(Sketcher.Constraint("DistanceY", 2, 2, 0, 2, Q("4.3 mm")))
sketch15.addConstraint(Sketcher.Constraint("DistanceX", 0, 1, 0, 2, Q("2.482606 mm")))
sketch15.addConstraint(Sketcher.Constraint("DistanceX", -1, 1, 0, 2, Q("10.841303 mm")))
pocket10 = body.newObject("PartDesign::Pocket", "Pocket009")
pocket10.Profile = sketch15
pocket10.setExpression("Length", "Params.pocket10_length")
pocket10.Reversed = True

# Sketch on YZ plane
sketch16 = body.newObject("Sketcher::SketchObject", "Sketch015")
sketch16.AttachmentSupport = (doc.getObject("YZ_Plane"), [""])
sketch16.MapMode = "FlatFace"
sketch16.addGeometry(Part.Circle(Vector(3.8, 22.5, 0), Vector(0, 0, 1), 1.6), False)
sketch16.addConstraint(Sketcher.Constraint("Diameter", 0, Q("3.2 mm")))
sketch16.addConstraint(Sketcher.Constraint("DistanceY", -1, 1, 0, 3, Q("22.5 mm")))
sketch16.addConstraint(Sketcher.Constraint("DistanceX", -1, 1, 0, 3, Q("3.75 mm")))
sketch16.setExpression("Constraints[0]", "Params.sketch16_diameter")
pocket11 = body.newObject("PartDesign::Pocket", "Pocket010")
pocket11.Profile = sketch16
pocket11.Type = "UpToFirst"
pocket11.Reversed = True

# Sketch on YZ plane
sketch17 = body.newObject("Sketcher::SketchObject", "Sketch016")
sketch17.AttachmentSupport = (doc.getObject("YZ_Plane"), [""])
sketch17.MapMode = "FlatFace"
sketch17.AttachmentOffset = App.Placement(Vector(0, 0, 7.5), App.Rotation())
add_polygon(sketch17, [(0.9, 24.1), (0.9, 20.9), (3.8, 19.2), (6.6, 20.9), (6.6, 24.1), (3.8, 25.8)])  # lines 0-5
sketch17.addConstraint(Sketcher.Constraint("Vertical", 0))
sketch17.addConstraint(Sketcher.Constraint("Vertical", 3))
sketch17.addConstraint(Sketcher.Constraint("Parallel", 1, 4))
sketch17.addConstraint(Sketcher.Constraint("Parallel", 2, 5))
sketch17.addConstraint(Sketcher.Constraint("Horizontal", 0, 2, 2, 2))
sketch17.addConstraint(Sketcher.Constraint("Horizontal", 3, 2, 5, 2))
sketch17.addConstraint(Sketcher.Constraint("Vertical", 1, 2, 4, 2))
sketch17.addConstraint(Sketcher.Constraint("Angle", 1, Q("-30 deg")))
sketch17.addConstraint(Sketcher.Constraint("DistanceX", -1, 1, 0, 2, Q("0.9 mm")))
sketch17.addConstraint(Sketcher.Constraint("DistanceX", -1, 1, 2, 2, Q("6.6 mm")))
sketch17.addConstraint(Sketcher.Constraint("DistanceY", 0, 2, 0, 1, Q("3.290897 mm")))
sketch17.addConstraint(Sketcher.Constraint("DistanceY", -1, 1, 0, 2, Q("20.854552 mm")))
pocket12 = body.newObject("PartDesign::Pocket", "Pocket011")
pocket12.Profile = sketch17
pocket12.setExpression("Length", "Params.pocket12_length")

# Sketch on YZ plane
sketch18 = body.newObject("Sketcher::SketchObject", "Sketch017")
sketch18.AttachmentSupport = (doc.getObject("YZ_Plane"), [""])
sketch18.MapMode = "FlatFace"
sketch18.AttachmentOffset = App.Placement(Vector(0, 0, 77), App.Rotation())
sketch18.addGeometry(Part.Circle(Vector(3.8, 22.5, 0), Vector(0, 0, 1), 1.6), False)
sketch18.addConstraint(Sketcher.Constraint("Diameter", 0, Q("3.2 mm")))
sketch18.addConstraint(Sketcher.Constraint("DistanceY", -1, 1, 0, 3, Q("22.5 mm")))
sketch18.addConstraint(Sketcher.Constraint("DistanceX", -1, 1, 0, 3, Q("3.75 mm")))
sketch18.setExpression("Constraints[0]", "Params.sketch18_diameter")
pocket13 = body.newObject("PartDesign::Pocket", "Pocket012")
pocket13.Profile = sketch18
pocket13.Type = "UpToFirst"

# Sketch on YZ plane
sketch19 = body.newObject("Sketcher::SketchObject", "Sketch018")
sketch19.AttachmentSupport = (doc.getObject("YZ_Plane"), [""])
sketch19.MapMode = "FlatFace"
sketch19.AttachmentOffset = App.Placement(Vector(0, 0, 69.5), App.Rotation())
add_polygon(sketch19, [(0.9, 20.9), (0.9, 24.1), (3.8, 25.8), (6.6, 24.1), (6.6, 20.9), (3.8, 19.2)])  # lines 0-5
sketch19.addConstraint(Sketcher.Constraint("Vertical", 0))
sketch19.addConstraint(Sketcher.Constraint("Vertical", 3))
sketch19.addConstraint(Sketcher.Constraint("Parallel", 1, 4))
sketch19.addConstraint(Sketcher.Constraint("Parallel", 2, 5))
sketch19.addConstraint(Sketcher.Constraint("Horizontal", 0, 2, 2, 2))
sketch19.addConstraint(Sketcher.Constraint("Horizontal", 3, 2, 5, 2))
sketch19.addConstraint(Sketcher.Constraint("Vertical", 1, 2, 4, 2))
sketch19.addConstraint(Sketcher.Constraint("Angle", 1, Q("30 deg")))
sketch19.addConstraint(Sketcher.Constraint("DistanceX", -1, 1, 0, 2, Q("0.9 mm")))
sketch19.addConstraint(Sketcher.Constraint("DistanceX", -1, 1, 2, 2, Q("6.6 mm")))
sketch19.addConstraint(Sketcher.Constraint("DistanceY", 0, 1, 0, 2, Q("3.290897 mm")))
sketch19.addConstraint(Sketcher.Constraint("DistanceY", -1, 1, 0, 2, Q("24.145448 mm")))
pocket14 = body.newObject("PartDesign::Pocket", "Pocket013")
pocket14.Profile = sketch19
pocket14.setExpression("Length", "Params.pocket14_length")
pocket14.Reversed = True

doc.recompute()
